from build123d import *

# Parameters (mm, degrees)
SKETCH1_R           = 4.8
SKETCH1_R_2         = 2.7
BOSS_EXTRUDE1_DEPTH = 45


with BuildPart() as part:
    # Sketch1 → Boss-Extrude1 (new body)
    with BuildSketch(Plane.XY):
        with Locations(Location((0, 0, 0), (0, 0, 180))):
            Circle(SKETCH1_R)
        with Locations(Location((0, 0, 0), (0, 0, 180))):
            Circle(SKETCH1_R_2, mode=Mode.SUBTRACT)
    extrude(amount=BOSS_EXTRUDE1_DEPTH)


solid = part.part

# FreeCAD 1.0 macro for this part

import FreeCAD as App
import Part
import Sketcher

doc = App.newDocument("Part")
body = doc.addObject("PartDesign::Body", "Body")

sketch1 = doc.addObject("Sketcher::SketchObject", "Sketch")
body.addObject(sketch1)
sketch1.AttachmentSupport = (doc.XY_Plane, [""])
sketch1.MapMode = "FlatFace"
sketch1.addGeometry(Part.Circle(App.Vector(0, 0, 0), App.Vector(0, 0, 1), 4.8), False)
sketch1.addGeometry(Part.Circle(App.Vector(0, 0, 0), App.Vector(0, 0, 1), 2.7), False)
sketch1.addConstraint(Sketcher.Constraint("Coincident", 0, 3, -1, 1))
sketch1.addConstraint(Sketcher.Constraint("Coincident", 1, 3, -1, 1))
sketch1.addConstraint(Sketcher.Constraint("Diameter", 0, 9.6))
sketch1.addConstraint(Sketcher.Constraint("Diameter", 1, 5.4))
pad1 = doc.addObject("PartDesign::Pad", "Pad")
body.addObject(pad1)
pad1.Profile = sketch1
pad1.Length = 45

doc.recompute()
